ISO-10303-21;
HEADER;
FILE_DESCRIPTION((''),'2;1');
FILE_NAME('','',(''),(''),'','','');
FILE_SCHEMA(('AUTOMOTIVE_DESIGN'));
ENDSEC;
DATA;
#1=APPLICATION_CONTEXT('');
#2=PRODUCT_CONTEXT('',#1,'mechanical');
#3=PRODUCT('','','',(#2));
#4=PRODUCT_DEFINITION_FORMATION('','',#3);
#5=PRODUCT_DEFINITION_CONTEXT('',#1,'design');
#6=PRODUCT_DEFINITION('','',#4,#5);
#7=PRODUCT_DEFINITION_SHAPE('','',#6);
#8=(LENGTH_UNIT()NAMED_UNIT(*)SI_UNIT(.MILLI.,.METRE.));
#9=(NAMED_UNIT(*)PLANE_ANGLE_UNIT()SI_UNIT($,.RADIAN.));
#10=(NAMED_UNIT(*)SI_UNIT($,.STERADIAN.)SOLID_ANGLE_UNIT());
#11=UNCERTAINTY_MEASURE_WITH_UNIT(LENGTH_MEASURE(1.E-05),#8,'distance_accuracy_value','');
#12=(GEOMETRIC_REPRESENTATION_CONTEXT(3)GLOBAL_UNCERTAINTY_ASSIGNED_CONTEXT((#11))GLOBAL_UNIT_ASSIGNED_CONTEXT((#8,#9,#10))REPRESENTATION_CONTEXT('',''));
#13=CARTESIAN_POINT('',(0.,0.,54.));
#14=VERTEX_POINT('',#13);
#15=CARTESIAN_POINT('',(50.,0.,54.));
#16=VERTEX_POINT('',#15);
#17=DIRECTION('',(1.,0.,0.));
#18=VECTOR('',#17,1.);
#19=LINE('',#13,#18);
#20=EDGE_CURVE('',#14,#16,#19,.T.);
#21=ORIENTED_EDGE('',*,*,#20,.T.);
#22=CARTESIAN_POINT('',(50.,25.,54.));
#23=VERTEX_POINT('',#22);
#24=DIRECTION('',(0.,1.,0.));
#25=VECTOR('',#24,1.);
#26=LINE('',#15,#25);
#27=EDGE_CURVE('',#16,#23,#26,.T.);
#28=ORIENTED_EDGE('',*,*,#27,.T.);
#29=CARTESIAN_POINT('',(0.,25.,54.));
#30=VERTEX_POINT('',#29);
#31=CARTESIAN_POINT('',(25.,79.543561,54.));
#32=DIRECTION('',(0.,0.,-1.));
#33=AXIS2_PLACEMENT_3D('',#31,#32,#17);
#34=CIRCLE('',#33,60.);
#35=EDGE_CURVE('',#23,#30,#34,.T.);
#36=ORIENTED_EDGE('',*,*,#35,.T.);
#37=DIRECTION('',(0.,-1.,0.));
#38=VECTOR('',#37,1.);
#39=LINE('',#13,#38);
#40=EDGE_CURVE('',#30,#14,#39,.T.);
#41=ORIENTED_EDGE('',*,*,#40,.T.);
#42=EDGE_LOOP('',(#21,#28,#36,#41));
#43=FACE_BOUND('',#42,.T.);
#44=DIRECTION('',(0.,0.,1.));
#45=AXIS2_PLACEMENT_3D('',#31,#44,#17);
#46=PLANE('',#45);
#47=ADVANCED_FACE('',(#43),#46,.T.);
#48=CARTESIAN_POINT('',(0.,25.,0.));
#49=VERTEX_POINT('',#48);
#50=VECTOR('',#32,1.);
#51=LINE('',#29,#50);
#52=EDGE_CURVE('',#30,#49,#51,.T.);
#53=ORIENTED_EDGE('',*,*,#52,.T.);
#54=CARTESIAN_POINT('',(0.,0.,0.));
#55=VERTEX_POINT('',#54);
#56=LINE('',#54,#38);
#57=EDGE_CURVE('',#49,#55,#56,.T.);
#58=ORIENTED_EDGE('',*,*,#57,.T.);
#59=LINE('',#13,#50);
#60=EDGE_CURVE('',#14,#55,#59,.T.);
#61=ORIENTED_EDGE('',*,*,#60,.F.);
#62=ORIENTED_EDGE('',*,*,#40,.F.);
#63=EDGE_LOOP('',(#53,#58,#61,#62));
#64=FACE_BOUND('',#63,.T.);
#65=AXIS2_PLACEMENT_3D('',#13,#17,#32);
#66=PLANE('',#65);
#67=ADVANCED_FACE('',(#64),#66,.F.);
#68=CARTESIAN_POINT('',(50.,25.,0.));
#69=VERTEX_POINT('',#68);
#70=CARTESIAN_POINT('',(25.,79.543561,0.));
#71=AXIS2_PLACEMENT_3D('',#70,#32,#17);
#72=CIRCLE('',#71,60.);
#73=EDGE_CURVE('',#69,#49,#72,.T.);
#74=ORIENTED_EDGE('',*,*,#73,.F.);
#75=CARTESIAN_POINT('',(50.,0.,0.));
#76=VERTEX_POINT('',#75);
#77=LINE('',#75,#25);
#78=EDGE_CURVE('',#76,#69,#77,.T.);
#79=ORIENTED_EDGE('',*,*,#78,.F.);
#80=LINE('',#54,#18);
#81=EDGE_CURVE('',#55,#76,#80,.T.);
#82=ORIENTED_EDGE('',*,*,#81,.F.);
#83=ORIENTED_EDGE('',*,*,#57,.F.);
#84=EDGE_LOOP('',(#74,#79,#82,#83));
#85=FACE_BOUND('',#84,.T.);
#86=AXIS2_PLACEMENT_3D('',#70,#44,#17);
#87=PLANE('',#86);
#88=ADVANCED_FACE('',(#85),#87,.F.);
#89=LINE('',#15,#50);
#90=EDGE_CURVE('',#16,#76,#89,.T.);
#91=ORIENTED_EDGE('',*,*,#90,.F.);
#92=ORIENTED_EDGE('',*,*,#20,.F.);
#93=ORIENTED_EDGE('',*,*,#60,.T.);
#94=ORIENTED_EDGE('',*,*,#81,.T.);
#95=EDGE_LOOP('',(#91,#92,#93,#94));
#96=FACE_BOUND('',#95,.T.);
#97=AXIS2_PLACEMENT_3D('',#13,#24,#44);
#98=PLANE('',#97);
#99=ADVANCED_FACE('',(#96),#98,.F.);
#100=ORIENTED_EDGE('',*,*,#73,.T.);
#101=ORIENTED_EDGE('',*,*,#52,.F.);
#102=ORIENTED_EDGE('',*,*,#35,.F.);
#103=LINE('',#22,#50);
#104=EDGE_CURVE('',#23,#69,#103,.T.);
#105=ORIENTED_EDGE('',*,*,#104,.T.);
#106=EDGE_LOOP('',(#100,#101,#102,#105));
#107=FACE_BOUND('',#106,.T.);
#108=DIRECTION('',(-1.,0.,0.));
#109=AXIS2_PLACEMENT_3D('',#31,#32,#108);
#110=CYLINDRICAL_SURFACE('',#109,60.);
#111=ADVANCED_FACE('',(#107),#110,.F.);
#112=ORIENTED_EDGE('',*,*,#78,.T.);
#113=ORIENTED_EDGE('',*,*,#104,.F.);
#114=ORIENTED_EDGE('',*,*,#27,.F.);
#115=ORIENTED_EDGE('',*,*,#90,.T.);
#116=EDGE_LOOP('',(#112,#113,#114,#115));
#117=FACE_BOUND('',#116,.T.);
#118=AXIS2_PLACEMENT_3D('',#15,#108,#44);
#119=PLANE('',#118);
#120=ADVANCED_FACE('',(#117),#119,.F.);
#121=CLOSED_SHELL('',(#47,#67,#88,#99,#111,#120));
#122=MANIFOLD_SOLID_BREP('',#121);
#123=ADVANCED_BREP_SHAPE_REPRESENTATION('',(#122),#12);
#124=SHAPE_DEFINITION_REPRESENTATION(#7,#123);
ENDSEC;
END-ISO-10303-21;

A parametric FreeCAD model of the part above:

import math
import FreeCAD as App
import Part
import Sketcher

V = App.Vector

doc = App.newDocument("Part")
params = doc.addObject("Spreadsheet::Sheet", "Params")
for row, (alias, value) in enumerate([
    ("sketch1_radius", "60 mm"),
    ("sketch1_width", "50 mm"),
    ("sketch1_height", "25 mm"),
    ("pad1_length", "54 mm"),
], start=1):
    params.set(f"A{row}", alias)
    params.set(f"B{row}", "=" + value)
    params.setAlias(f"B{row}", alias)

body = doc.addObject("PartDesign::Body", "Body")

# Sketch on XY plane
sketch1 = doc.addObject("Sketcher::SketchObject", "Sketch")
body.addObject(sketch1)
sketch1.AttachmentSupport = (doc.XY_Plane, [""])
sketch1.MapMode = "FlatFace"
sketch1.addGeometry([
    Part.LineSegment(V(0, 0, 0), V(50, 0, 0)),
    Part.LineSegment(V(50, 0, 0), V(50, 25, 0)),
    Part.ArcOfCircle(Part.Circle(V(25, 80, 0), V(0, 0, 1), 60), math.radians(-115), math.radians(-65)),
    Part.LineSegment(V(0, 25, 0), V(0, 0, 0)),
], False)
sketch1.addConstraint([
    Sketcher.Constraint("Coincident", 0, 2, 1, 1),
    Sketcher.Constraint("Coincident", 1, 2, 2, 2),
    Sketcher.Constraint("Coincident", 2, 1, 3, 1),
    Sketcher.Constraint("Coincident", 3, 2, 0, 1),
    Sketcher.Constraint("Horizontal", 0),
    Sketcher.Constraint("Vertical", 1),
    Sketcher.Constraint("Vertical", 3),
    Sketcher.Constraint("Coincident", 3, 2, -1, 1),
    Sketcher.Constraint("Horizontal", 1, 2, 2, 1),
    Sketcher.Constraint("Radius", 2, 60.0),
    Sketcher.Constraint("DistanceX", 0, 1, 0, 2, 50.0),
    Sketcher.Constraint("DistanceY", 1, 1, 1, 2, 25.0),
])
sketch1.setExpression("Constraints[9]", "Params.sketch1_radius")
sketch1.setExpression("Constraints[10]", "Params.sketch1_width")
sketch1.setExpression("Constraints[11]", "Params.sketch1_height")
pad1 = doc.addObject("PartDesign::Pad", "Pad")
body.addObject(pad1)
pad1.Profile = sketch1
pad1.setExpression("Length", "Params.pad1_length")

doc.recompute()
